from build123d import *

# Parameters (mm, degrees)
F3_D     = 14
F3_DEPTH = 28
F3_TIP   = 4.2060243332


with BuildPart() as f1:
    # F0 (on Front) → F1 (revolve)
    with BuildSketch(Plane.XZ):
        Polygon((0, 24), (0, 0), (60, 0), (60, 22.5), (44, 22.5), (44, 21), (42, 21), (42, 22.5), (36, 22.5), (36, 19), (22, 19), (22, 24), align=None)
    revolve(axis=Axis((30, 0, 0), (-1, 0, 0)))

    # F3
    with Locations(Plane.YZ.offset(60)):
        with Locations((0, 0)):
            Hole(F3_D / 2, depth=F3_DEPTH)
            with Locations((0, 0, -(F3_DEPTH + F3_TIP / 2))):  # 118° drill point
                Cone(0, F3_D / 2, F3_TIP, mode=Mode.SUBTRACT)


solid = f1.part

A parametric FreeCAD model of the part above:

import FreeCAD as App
import Part
import Sketcher
from FreeCAD import Vector


def add_polygon(sketch, points):
    """Adds a closed chain of lines whose ends are joined by coincident constraints."""
    first, n = sketch.GeometryCount, len(points)
    for a, b in zip(points, points[1:] + points[:1]):
        sketch.addGeometry(Part.LineSegment(App.Vector(*a, 0), App.Vector(*b, 0)), False)
    for i in range(n):
        sketch.addConstraint(Sketcher.Constraint("Coincident", first + i, 2, first + (i + 1) % n, 1))

doc = App.newDocument("Part")
params = doc.addObject("Spreadsheet::Sheet", "Params")
for row, (alias, value) in enumerate([
    ("sketch1_width", "60 mm"),
    ("sketch1_width2", "16 mm"),
    ("sketch1_width3", "2 mm"),
    ("sketch1_width4", "6 mm"),
    ("sketch1_width5", "14 mm"),
    ("revolution_angle", "360 deg"),
    ("sketch2_diameter", "14 mm"),
    ("hole_diameter", "14 mm"),
    ("hole_depth", "28 mm"),
], start=1):
    params.set(f"A{row}", alias)
    params.set(f"B{row}", "=" + value)
    params.setAlias(f"B{row}", alias)

body = doc.addObject("PartDesign::Body", "Body")

# Sketch on XZ plane
sketch1 = doc.addObject("Sketcher::SketchObject", "Sketch")
body.addObject(sketch1)
sketch1.AttachmentSupport = (doc.XZ_Plane, [""])
sketch1.MapMode = "FlatFace"
add_polygon(sketch1, [(0, 24), (0, 0), (60, 0), (60, 22.5), (44, 22.5), (44, 21), (42, 21), (42, 22.5), (36, 22.5), (36, 19), (22, 19), (22, 24)])  # lines 0-11
sketch1.addConstraint(Sketcher.Constraint("Vertical", 0))
sketch1.addConstraint(Sketcher.Constraint("Horizontal", 1))
sketch1.addConstraint(Sketcher.Constraint("Vertical", 2))
sketch1.addConstraint(Sketcher.Constraint("Horizontal", 3))
sketch1.addConstraint(Sketcher.Constraint("Vertical", 4))
sketch1.addConstraint(Sketcher.Constraint("Horizontal", 5))
sketch1.addConstraint(Sketcher.Constraint("Vertical", 6))
sketch1.addConstraint(Sketcher.Constraint("Horizontal", 7))
sketch1.addConstraint(Sketcher.Constraint("Vertical", 8))
sketch1.addConstraint(Sketcher.Constraint("Horizontal", 9))
sketch1.addConstraint(Sketcher.Constraint("Vertical", 10))
sketch1.addConstraint(Sketcher.Constraint("Horizontal", 11))
sketch1.addConstraint(Sketcher.Constraint("Coincident", 0, 2, -1, 1))
sketch1.addConstraint(Sketcher.Constraint("Horizontal", 3, 2, 6, 2))
sketch1.addConstraint(Sketcher.Constraint("DistanceX", 1, 1, 1, 2, 60.0))
sketch1.addConstraint(Sketcher.Constraint("DistanceX", 3, 2, 3, 1, 16.0))
sketch1.addConstraint(Sketcher.Constraint("DistanceX", 5, 2, 5, 1, 2.0))
sketch1.addConstraint(Sketcher.Constraint("DistanceX", 7, 2, 7, 1, 6.0))
sketch1.addConstraint(Sketcher.Constraint("DistanceX", 9, 2, 9, 1, 14.0))
sketch1.addConstraint(Sketcher.Constraint("DistanceY", 0, 2, 0, 1, 24.0))
sketch1.addConstraint(Sketcher.Constraint("DistanceY", 10, 1, 10, 2, 5.0))
sketch1.addConstraint(Sketcher.Constraint("DistanceY", 2, 1, 2, 2, 22.5))
sketch1.addConstraint(Sketcher.Constraint("DistanceY", 4, 2, 4, 1, 1.5))
sketch1.setExpression("Constraints[26]", "Params.sketch1_width")
sketch1.setExpression("Constraints[27]", "Params.sketch1_width2")
sketch1.setExpression("Constraints[28]", "Params.sketch1_width3")
sketch1.setExpression("Constraints[29]", "Params.sketch1_width4")
sketch1.setExpression("Constraints[30]", "Params.sketch1_width5")
revolution = doc.addObject("PartDesign::Revolution", "Revolution")
body.addObject(revolution)
revolution.Profile = sketch1
revolution.ReferenceAxis = (sketch1, ["H_Axis"])
revolution.setExpression("Angle", "Params.revolution_angle")

# Sketch on YZ plane
sketch2 = doc.addObject("Sketcher::SketchObject", "Sketch001")
body.addObject(sketch2)
sketch2.AttachmentSupport = (doc.YZ_Plane, [""])
sketch2.MapMode = "FlatFace"
sketch2.AttachmentOffset = App.Placement(Vector(0, 0, 60), App.Rotation())
sketch2.addGeometry(Part.Circle(Vector(0, 0, 0), Vector(0, 0, 1), 7), False)
sketch2.addConstraint(Sketcher.Constraint("Coincident", 0, 3, -1, 1))
sketch2.addConstraint(Sketcher.Constraint("Diameter", 0, 14.0))
sketch2.setExpression("Constraints[1]", "Params.sketch2_diameter")
doc.recompute()
hole = doc.addObject("PartDesign::Hole", "Hole")
body.addObject(hole)
hole.Profile = sketch2
hole.ThreadType = "None"
hole.setExpression("Diameter", "Params.hole_diameter")
hole.DepthType = "Dimension"
hole.setExpression("Depth", "Params.hole_depth")
hole.DrillPoint = "Angled"
hole.DrillPointAngle = 118

doc.recompute()
